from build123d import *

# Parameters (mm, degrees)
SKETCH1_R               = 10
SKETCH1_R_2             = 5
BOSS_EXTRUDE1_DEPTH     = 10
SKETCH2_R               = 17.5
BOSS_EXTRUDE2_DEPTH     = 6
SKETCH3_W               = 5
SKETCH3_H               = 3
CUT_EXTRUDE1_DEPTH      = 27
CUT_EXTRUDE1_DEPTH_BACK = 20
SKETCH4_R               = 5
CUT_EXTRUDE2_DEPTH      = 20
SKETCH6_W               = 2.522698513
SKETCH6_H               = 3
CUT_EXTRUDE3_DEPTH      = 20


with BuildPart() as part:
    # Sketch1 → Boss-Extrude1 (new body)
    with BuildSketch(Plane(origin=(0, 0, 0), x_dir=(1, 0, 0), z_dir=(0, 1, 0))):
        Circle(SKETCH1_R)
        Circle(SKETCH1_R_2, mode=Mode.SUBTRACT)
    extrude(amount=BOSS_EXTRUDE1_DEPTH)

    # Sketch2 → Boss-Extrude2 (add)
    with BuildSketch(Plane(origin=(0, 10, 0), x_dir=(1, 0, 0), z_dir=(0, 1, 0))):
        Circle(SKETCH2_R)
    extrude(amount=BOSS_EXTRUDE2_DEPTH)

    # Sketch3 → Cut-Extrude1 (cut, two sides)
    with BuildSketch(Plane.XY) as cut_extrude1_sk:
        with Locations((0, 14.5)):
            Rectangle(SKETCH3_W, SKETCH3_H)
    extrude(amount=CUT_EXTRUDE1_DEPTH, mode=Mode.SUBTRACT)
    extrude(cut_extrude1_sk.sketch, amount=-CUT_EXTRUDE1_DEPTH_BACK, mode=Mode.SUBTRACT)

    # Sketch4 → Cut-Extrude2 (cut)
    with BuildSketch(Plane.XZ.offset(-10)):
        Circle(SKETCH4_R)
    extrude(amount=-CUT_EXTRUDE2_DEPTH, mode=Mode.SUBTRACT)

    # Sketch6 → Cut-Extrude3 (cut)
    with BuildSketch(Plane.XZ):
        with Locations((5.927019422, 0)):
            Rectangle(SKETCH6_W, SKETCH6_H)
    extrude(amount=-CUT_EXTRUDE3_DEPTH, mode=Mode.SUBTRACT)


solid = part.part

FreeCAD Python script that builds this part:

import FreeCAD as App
import Part
import Sketcher

V = App.Vector

doc = App.newDocument("Part")
body = doc.addObject("PartDesign::Body", "Body")

# Sketch on XZ plane
sketch1 = doc.addObject("Sketcher::SketchObject", "Sketch")
body.addObject(sketch1)
sketch1.AttachmentSupport = (doc.XZ_Plane, [""])
sketch1.MapMode = "FlatFace"
sketch1.addGeometry(Part.Circle(V(0, 0, 0), V(0, 0, 1), 10), False)
sketch1.addGeometry(Part.Circle(V(0, 0, 0), V(0, 0, 1), 5), False)
sketch1.addConstraint(Sketcher.Constraint("Coincident", 0, 3, -1, 1))
sketch1.addConstraint(Sketcher.Constraint("Coincident", 1, 3, -1, 1))
sketch1.addConstraint(Sketcher.Constraint("Diameter", 0, 20.0))
sketch1.addConstraint(Sketcher.Constraint("Diameter", 1, 10.0))
pad1 = doc.addObject("PartDesign::Pad", "Pad")
body.addObject(pad1)
pad1.Profile = sketch1
pad1.Length = 10
pad1.Reversed = True

# Sketch on XZ plane
sketch2 = doc.addObject("Sketcher::SketchObject", "Sketch001")
body.addObject(sketch2)
sketch2.AttachmentSupport = (doc.XZ_Plane, [""])
sketch2.MapMode = "FlatFace"
sketch2.AttachmentOffset = App.Placement(V(0, 0, -10), App.Rotation())
sketch2.addGeometry(Part.Circle(V(0, 0, 0), V(0, 0, 1), 18), False)
sketch2.addConstraint(Sketcher.Constraint("Coincident", 0, 3, -1, 1))
sketch2.addConstraint(Sketcher.Constraint("Diameter", 0, 35.0))
pad2 = doc.addObject("PartDesign::Pad", "Pad001")
body.addObject(pad2)
pad2.Profile = sketch2
pad2.Length = 6
pad2.Reversed = True

# Sketch on XY plane
sketch3 = doc.addObject("Sketcher::SketchObject", "Sketch002")
body.addObject(sketch3)
sketch3.AttachmentSupport = (doc.XY_Plane, [""])
sketch3.MapMode = "FlatFace"
sketch3.addGeometry(Part.LineSegment(V(-2.5, 16, 0), V(-2.5, 13, 0)), False)
sketch3.addGeometry(Part.LineSegment(V(-2.5, 13, 0), V(2.5, 13, 0)), False)
sketch3.addGeometry(Part.LineSegment(V(2.5, 13, 0), V(2.5, 16, 0)), False)
sketch3.addGeometry(Part.LineSegment(V(2.5, 16, 0), V(-2.5, 16, 0)), False)
sketch3.addConstraint(Sketcher.Constraint("Coincident", 0, 2, 1, 1))
sketch3.addConstraint(Sketcher.Constraint("Coincident", 1, 2, 2, 1))
sketch3.addConstraint(Sketcher.Constraint("Coincident", 2, 2, 3, 1))
sketch3.addConstraint(Sketcher.Constraint("Coincident", 3, 2, 0, 1))
sketch3.addConstraint(Sketcher.Constraint("Vertical", 0))
sketch3.addConstraint(Sketcher.Constraint("Horizontal", 1))
sketch3.addConstraint(Sketcher.Constraint("Vertical", 2))
sketch3.addConstraint(Sketcher.Constraint("Horizontal", 3))
sketch3.addConstraint(Sketcher.Constraint("DistanceX", 1, 1, 1, 2, 5.0))
sketch3.addConstraint(Sketcher.Constraint("DistanceY", 0, 2, 0, 1, 3.0))
sketch3.addConstraint(Sketcher.Constraint("DistanceY", -1, 1, 0, 2, 13.0))
sketch3.addConstraint(Sketcher.Constraint("DistanceX", 0, 2, -1, 1, 2.5))
pocket1 = doc.addObject("PartDesign::Pocket", "Pocket")
body.addObject(pocket1)
pocket1.Profile = sketch3
pocket1.Type = "ThroughAll"
pocket1.Midplane = True

# Sketch on XZ plane
sketch4 = doc.addObject("Sketcher::SketchObject", "Sketch003")
body.addObject(sketch4)
sketch4.AttachmentSupport = (doc.XZ_Plane, [""])
sketch4.MapMode = "FlatFace"
sketch4.AttachmentOffset = App.Placement(V(0, 0, -10), App.Rotation())
sketch4.addGeometry(Part.Circle(V(0, 0, 0), V(0, 0, 1), 5), False)
sketch4.addConstraint(Sketcher.Constraint("Coincident", 0, 3, -1, 1))
sketch4.addConstraint(Sketcher.Constraint("Diameter", 0, 10.0))
pocket2 = doc.addObject("PartDesign::Pocket", "Pocket001")
body.addObject(pocket2)
pocket2.Profile = sketch4
pocket2.Length = 20

# Sketch on XZ plane
sketch5 = doc.addObject("Sketcher::SketchObject", "Sketch004")
body.addObject(sketch5)
sketch5.AttachmentSupport = (doc.XZ_Plane, [""])
sketch5.MapMode = "FlatFace"
sketch5.addGeometry(Part.LineSegment(V(4.7, 1.5, 0), V(4.7, -1.5, 0)), False)
sketch5.addGeometry(Part.LineSegment(V(4.7, -1.5, 0), V(7.2, -1.5, 0)), False)
sketch5.addGeometry(Part.LineSegment(V(7.2, -1.5, 0), V(7.2, 1.5, 0)), False)
sketch5.addGeometry(Part.LineSegment(V(7.2, 1.5, 0), V(4.7, 1.5, 0)), False)
sketch5.addConstraint(Sketcher.Constraint("Coincident", 0, 2, 1, 1))
sketch5.addConstraint(Sketcher.Constraint("Coincident", 1, 2, 2, 1))
sketch5.addConstraint(Sketcher.Constraint("Coincident", 2, 2, 3, 1))
sketch5.addConstraint(Sketcher.Constraint("Coincident", 3, 2, 0, 1))
sketch5.addConstraint(Sketcher.Constraint("Vertical", 0))
sketch5.addConstraint(Sketcher.Constraint("Horizontal", 1))
sketch5.addConstraint(Sketcher.Constraint("Vertical", 2))
sketch5.addConstraint(Sketcher.Constraint("Horizontal", 3))
sketch5.addConstraint(Sketcher.Constraint("DistanceY", 0, 2, 0, 1, 3.0))
sketch5.addConstraint(Sketcher.Constraint("DistanceY", 0, 2, -1, 1, 1.5))
sketch5.addConstraint(Sketcher.Constraint("DistanceX", 1, 1, 1, 2, 2.522699))
sketch5.addConstraint(Sketcher.Constraint("DistanceX", -1, 1, 0, 2, 4.66567))
pocket3 = doc.addObject("PartDesign::Pocket", "Pocket002")
body.addObject(pocket3)
pocket3.Profile = sketch5
pocket3.Length = 20

doc.recompute()
